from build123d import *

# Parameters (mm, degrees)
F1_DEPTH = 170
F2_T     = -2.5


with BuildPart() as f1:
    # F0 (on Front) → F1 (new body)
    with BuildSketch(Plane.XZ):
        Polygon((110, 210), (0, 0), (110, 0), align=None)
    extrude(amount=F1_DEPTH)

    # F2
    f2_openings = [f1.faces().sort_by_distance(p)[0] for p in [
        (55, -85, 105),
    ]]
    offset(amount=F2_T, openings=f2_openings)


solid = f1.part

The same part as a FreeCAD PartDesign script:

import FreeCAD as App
import Part
import Sketcher

V = App.Vector
Q = App.Units.Quantity


def faces_at(feature, points):
    """Names of the faces that lie closest to the given points."""
    faces = feature.Shape.Faces
    near = lambda p: min(range(len(faces)), key=lambda i: faces[i].distToShape(Part.Vertex(*p))[0])
    return sorted({f"Face{near(p) + 1}" for p in points})


def add_polygon(sketch, points):
    """Adds a closed chain of lines whose ends are joined by coincident constraints."""
    first, n = sketch.GeometryCount, len(points)
    for a, b in zip(points, points[1:] + points[:1]):
        sketch.addGeometry(Part.LineSegment(App.Vector(*a, 0), App.Vector(*b, 0)), False)
    for i in range(n):
        sketch.addConstraint(Sketcher.Constraint("Coincident", first + i, 2, first + (i + 1) % n, 1))

doc = App.newDocument("Part")
body = doc.addObject("PartDesign::Body", "Body")

sketch1 = doc.addObject("Sketcher::SketchObject", "Sketch")
body.addObject(sketch1)
sketch1.AttachmentSupport = (doc.XZ_Plane, [""])
sketch1.MapMode = "FlatFace"
add_polygon(sketch1, [(110, 210), (0, 0), (110, 0)])
sketch1.addConstraint(Sketcher.Constraint("Horizontal", 1))
sketch1.addConstraint(Sketcher.Constraint("Vertical", 2))
sketch1.addConstraint(Sketcher.Constraint("Coincident", 0, 2, -1, 1))
sketch1.addConstraint(Sketcher.Constraint("DistanceX", 1, 1, 1, 2, Q("110 mm")))
sketch1.addConstraint(Sketcher.Constraint("DistanceY", 2, 1, 2, 2, Q("210 mm")))
pad1 = doc.addObject("PartDesign::Pad", "Pad")
body.addObject(pad1)
pad1.Profile = sketch1
pad1.Length = 170
doc.recompute()

thickness = doc.addObject("PartDesign::Thickness", "Thickness")
body.addObject(thickness)
thickness.Base = (pad1, faces_at(pad1, [(55, -85, 105)]))
thickness.Value = 2.5
thickness.Reversed = True
thickness.Join = "Arc"

doc.recompute()
